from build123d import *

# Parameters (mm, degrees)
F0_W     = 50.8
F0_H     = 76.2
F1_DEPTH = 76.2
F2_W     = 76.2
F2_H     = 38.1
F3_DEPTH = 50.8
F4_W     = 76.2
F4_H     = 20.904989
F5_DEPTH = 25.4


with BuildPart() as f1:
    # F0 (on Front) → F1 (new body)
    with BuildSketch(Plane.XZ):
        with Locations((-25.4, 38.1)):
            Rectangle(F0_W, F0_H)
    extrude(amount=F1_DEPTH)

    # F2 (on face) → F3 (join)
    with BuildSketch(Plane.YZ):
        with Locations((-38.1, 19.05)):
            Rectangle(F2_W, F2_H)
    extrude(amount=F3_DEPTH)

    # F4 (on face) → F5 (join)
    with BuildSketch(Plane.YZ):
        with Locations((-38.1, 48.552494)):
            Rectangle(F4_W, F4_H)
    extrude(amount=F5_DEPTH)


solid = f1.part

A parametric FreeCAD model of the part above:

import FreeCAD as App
import Part
import Sketcher
from FreeCAD import Vector
Q = App.Units.Quantity


def add_polygon(sketch, points):
    """Adds a closed chain of lines whose ends are joined by coincident constraints."""
    first, n = sketch.GeometryCount, len(points)
    for a, b in zip(points, points[1:] + points[:1]):
        sketch.addGeometry(Part.LineSegment(App.Vector(*a, 0), App.Vector(*b, 0)), False)
    for i in range(n):
        sketch.addConstraint(Sketcher.Constraint("Coincident", first + i, 2, first + (i + 1) % n, 1))

doc = App.newDocument("Part")
body = doc.addObject("PartDesign::Body", "Body")

sketch1 = body.newObject("Sketcher::SketchObject", "Sketch")
sketch1.AttachmentSupport = (doc.getObject("XZ_Plane"), [""])
sketch1.MapMode = "FlatFace"
add_polygon(sketch1, [(-50.8, 76.2), (-50.8, 0), (0, 0), (0, 76.2)])
sketch1.addConstraint([
    Sketcher.Constraint("Vertical", 0),
    Sketcher.Constraint("Horizontal", 1),
    Sketcher.Constraint("Vertical", 2),
    Sketcher.Constraint("Horizontal", 3),
    Sketcher.Constraint("Coincident", 1, 2, -1, 1),
    Sketcher.Constraint("DistanceX", 1, 1, 1, 2, Q("2 in")),
    Sketcher.Constraint("DistanceY", 0, 2, 0, 1, Q("3 in")),
])
pad1 = body.newObject("PartDesign::Pad", "Pad")
pad1.Profile = sketch1
pad1.Length = Q("3 in")

sketch2 = body.newObject("Sketcher::SketchObject", "Sketch001")
sketch2.AttachmentSupport = (doc.getObject("YZ_Plane"), [""])
sketch2.MapMode = "FlatFace"
add_polygon(sketch2, [(-76.2, 38.1), (-76.2, 0), (0, 0), (0, 38.1)])
sketch2.addConstraint([
    Sketcher.Constraint("Vertical", 0),
    Sketcher.Constraint("Horizontal", 1),
    Sketcher.Constraint("Vertical", 2),
    Sketcher.Constraint("Horizontal", 3),
    Sketcher.Constraint("Coincident", 1, 2, -1, 1),
    Sketcher.Constraint("DistanceX", 1, 1, 1, 2, Q("3 in")),
    Sketcher.Constraint("DistanceY", 0, 2, 0, 1, Q("1.5 in")),
])
pad2 = body.newObject("PartDesign::Pad", "Pad001")
pad2.Profile = sketch2
pad2.Length = Q("2 in")

sketch3 = body.newObject("Sketcher::SketchObject", "Sketch002")
sketch3.AttachmentSupport = (doc.getObject("YZ_Plane"), [""])
sketch3.MapMode = "FlatFace"
add_polygon(sketch3, [(-76.2, 59.004989), (-76.2, 38.1), (0, 38.1), (0, 59.004989)])
sketch3.addConstraint([
    Sketcher.Constraint("Vertical", 0),
    Sketcher.Constraint("Horizontal", 1),
    Sketcher.Constraint("Vertical", 2),
    Sketcher.Constraint("Horizontal", 3),
    Sketcher.Constraint("PointOnObject", 1, 2, -2),
    Sketcher.Constraint("DistanceX", 1, 1, 1, 2, Q("3 in")),
    Sketcher.Constraint("DistanceY", -1, 1, 0, 2, Q("1.5 in")),
    Sketcher.Constraint("DistanceY", 0, 2, 0, 1, 20.904989),
])
pad3 = body.newObject("PartDesign::Pad", "Pad002")
pad3.Profile = sketch3
pad3.Length = Q("1 in")

doc.recompute()
